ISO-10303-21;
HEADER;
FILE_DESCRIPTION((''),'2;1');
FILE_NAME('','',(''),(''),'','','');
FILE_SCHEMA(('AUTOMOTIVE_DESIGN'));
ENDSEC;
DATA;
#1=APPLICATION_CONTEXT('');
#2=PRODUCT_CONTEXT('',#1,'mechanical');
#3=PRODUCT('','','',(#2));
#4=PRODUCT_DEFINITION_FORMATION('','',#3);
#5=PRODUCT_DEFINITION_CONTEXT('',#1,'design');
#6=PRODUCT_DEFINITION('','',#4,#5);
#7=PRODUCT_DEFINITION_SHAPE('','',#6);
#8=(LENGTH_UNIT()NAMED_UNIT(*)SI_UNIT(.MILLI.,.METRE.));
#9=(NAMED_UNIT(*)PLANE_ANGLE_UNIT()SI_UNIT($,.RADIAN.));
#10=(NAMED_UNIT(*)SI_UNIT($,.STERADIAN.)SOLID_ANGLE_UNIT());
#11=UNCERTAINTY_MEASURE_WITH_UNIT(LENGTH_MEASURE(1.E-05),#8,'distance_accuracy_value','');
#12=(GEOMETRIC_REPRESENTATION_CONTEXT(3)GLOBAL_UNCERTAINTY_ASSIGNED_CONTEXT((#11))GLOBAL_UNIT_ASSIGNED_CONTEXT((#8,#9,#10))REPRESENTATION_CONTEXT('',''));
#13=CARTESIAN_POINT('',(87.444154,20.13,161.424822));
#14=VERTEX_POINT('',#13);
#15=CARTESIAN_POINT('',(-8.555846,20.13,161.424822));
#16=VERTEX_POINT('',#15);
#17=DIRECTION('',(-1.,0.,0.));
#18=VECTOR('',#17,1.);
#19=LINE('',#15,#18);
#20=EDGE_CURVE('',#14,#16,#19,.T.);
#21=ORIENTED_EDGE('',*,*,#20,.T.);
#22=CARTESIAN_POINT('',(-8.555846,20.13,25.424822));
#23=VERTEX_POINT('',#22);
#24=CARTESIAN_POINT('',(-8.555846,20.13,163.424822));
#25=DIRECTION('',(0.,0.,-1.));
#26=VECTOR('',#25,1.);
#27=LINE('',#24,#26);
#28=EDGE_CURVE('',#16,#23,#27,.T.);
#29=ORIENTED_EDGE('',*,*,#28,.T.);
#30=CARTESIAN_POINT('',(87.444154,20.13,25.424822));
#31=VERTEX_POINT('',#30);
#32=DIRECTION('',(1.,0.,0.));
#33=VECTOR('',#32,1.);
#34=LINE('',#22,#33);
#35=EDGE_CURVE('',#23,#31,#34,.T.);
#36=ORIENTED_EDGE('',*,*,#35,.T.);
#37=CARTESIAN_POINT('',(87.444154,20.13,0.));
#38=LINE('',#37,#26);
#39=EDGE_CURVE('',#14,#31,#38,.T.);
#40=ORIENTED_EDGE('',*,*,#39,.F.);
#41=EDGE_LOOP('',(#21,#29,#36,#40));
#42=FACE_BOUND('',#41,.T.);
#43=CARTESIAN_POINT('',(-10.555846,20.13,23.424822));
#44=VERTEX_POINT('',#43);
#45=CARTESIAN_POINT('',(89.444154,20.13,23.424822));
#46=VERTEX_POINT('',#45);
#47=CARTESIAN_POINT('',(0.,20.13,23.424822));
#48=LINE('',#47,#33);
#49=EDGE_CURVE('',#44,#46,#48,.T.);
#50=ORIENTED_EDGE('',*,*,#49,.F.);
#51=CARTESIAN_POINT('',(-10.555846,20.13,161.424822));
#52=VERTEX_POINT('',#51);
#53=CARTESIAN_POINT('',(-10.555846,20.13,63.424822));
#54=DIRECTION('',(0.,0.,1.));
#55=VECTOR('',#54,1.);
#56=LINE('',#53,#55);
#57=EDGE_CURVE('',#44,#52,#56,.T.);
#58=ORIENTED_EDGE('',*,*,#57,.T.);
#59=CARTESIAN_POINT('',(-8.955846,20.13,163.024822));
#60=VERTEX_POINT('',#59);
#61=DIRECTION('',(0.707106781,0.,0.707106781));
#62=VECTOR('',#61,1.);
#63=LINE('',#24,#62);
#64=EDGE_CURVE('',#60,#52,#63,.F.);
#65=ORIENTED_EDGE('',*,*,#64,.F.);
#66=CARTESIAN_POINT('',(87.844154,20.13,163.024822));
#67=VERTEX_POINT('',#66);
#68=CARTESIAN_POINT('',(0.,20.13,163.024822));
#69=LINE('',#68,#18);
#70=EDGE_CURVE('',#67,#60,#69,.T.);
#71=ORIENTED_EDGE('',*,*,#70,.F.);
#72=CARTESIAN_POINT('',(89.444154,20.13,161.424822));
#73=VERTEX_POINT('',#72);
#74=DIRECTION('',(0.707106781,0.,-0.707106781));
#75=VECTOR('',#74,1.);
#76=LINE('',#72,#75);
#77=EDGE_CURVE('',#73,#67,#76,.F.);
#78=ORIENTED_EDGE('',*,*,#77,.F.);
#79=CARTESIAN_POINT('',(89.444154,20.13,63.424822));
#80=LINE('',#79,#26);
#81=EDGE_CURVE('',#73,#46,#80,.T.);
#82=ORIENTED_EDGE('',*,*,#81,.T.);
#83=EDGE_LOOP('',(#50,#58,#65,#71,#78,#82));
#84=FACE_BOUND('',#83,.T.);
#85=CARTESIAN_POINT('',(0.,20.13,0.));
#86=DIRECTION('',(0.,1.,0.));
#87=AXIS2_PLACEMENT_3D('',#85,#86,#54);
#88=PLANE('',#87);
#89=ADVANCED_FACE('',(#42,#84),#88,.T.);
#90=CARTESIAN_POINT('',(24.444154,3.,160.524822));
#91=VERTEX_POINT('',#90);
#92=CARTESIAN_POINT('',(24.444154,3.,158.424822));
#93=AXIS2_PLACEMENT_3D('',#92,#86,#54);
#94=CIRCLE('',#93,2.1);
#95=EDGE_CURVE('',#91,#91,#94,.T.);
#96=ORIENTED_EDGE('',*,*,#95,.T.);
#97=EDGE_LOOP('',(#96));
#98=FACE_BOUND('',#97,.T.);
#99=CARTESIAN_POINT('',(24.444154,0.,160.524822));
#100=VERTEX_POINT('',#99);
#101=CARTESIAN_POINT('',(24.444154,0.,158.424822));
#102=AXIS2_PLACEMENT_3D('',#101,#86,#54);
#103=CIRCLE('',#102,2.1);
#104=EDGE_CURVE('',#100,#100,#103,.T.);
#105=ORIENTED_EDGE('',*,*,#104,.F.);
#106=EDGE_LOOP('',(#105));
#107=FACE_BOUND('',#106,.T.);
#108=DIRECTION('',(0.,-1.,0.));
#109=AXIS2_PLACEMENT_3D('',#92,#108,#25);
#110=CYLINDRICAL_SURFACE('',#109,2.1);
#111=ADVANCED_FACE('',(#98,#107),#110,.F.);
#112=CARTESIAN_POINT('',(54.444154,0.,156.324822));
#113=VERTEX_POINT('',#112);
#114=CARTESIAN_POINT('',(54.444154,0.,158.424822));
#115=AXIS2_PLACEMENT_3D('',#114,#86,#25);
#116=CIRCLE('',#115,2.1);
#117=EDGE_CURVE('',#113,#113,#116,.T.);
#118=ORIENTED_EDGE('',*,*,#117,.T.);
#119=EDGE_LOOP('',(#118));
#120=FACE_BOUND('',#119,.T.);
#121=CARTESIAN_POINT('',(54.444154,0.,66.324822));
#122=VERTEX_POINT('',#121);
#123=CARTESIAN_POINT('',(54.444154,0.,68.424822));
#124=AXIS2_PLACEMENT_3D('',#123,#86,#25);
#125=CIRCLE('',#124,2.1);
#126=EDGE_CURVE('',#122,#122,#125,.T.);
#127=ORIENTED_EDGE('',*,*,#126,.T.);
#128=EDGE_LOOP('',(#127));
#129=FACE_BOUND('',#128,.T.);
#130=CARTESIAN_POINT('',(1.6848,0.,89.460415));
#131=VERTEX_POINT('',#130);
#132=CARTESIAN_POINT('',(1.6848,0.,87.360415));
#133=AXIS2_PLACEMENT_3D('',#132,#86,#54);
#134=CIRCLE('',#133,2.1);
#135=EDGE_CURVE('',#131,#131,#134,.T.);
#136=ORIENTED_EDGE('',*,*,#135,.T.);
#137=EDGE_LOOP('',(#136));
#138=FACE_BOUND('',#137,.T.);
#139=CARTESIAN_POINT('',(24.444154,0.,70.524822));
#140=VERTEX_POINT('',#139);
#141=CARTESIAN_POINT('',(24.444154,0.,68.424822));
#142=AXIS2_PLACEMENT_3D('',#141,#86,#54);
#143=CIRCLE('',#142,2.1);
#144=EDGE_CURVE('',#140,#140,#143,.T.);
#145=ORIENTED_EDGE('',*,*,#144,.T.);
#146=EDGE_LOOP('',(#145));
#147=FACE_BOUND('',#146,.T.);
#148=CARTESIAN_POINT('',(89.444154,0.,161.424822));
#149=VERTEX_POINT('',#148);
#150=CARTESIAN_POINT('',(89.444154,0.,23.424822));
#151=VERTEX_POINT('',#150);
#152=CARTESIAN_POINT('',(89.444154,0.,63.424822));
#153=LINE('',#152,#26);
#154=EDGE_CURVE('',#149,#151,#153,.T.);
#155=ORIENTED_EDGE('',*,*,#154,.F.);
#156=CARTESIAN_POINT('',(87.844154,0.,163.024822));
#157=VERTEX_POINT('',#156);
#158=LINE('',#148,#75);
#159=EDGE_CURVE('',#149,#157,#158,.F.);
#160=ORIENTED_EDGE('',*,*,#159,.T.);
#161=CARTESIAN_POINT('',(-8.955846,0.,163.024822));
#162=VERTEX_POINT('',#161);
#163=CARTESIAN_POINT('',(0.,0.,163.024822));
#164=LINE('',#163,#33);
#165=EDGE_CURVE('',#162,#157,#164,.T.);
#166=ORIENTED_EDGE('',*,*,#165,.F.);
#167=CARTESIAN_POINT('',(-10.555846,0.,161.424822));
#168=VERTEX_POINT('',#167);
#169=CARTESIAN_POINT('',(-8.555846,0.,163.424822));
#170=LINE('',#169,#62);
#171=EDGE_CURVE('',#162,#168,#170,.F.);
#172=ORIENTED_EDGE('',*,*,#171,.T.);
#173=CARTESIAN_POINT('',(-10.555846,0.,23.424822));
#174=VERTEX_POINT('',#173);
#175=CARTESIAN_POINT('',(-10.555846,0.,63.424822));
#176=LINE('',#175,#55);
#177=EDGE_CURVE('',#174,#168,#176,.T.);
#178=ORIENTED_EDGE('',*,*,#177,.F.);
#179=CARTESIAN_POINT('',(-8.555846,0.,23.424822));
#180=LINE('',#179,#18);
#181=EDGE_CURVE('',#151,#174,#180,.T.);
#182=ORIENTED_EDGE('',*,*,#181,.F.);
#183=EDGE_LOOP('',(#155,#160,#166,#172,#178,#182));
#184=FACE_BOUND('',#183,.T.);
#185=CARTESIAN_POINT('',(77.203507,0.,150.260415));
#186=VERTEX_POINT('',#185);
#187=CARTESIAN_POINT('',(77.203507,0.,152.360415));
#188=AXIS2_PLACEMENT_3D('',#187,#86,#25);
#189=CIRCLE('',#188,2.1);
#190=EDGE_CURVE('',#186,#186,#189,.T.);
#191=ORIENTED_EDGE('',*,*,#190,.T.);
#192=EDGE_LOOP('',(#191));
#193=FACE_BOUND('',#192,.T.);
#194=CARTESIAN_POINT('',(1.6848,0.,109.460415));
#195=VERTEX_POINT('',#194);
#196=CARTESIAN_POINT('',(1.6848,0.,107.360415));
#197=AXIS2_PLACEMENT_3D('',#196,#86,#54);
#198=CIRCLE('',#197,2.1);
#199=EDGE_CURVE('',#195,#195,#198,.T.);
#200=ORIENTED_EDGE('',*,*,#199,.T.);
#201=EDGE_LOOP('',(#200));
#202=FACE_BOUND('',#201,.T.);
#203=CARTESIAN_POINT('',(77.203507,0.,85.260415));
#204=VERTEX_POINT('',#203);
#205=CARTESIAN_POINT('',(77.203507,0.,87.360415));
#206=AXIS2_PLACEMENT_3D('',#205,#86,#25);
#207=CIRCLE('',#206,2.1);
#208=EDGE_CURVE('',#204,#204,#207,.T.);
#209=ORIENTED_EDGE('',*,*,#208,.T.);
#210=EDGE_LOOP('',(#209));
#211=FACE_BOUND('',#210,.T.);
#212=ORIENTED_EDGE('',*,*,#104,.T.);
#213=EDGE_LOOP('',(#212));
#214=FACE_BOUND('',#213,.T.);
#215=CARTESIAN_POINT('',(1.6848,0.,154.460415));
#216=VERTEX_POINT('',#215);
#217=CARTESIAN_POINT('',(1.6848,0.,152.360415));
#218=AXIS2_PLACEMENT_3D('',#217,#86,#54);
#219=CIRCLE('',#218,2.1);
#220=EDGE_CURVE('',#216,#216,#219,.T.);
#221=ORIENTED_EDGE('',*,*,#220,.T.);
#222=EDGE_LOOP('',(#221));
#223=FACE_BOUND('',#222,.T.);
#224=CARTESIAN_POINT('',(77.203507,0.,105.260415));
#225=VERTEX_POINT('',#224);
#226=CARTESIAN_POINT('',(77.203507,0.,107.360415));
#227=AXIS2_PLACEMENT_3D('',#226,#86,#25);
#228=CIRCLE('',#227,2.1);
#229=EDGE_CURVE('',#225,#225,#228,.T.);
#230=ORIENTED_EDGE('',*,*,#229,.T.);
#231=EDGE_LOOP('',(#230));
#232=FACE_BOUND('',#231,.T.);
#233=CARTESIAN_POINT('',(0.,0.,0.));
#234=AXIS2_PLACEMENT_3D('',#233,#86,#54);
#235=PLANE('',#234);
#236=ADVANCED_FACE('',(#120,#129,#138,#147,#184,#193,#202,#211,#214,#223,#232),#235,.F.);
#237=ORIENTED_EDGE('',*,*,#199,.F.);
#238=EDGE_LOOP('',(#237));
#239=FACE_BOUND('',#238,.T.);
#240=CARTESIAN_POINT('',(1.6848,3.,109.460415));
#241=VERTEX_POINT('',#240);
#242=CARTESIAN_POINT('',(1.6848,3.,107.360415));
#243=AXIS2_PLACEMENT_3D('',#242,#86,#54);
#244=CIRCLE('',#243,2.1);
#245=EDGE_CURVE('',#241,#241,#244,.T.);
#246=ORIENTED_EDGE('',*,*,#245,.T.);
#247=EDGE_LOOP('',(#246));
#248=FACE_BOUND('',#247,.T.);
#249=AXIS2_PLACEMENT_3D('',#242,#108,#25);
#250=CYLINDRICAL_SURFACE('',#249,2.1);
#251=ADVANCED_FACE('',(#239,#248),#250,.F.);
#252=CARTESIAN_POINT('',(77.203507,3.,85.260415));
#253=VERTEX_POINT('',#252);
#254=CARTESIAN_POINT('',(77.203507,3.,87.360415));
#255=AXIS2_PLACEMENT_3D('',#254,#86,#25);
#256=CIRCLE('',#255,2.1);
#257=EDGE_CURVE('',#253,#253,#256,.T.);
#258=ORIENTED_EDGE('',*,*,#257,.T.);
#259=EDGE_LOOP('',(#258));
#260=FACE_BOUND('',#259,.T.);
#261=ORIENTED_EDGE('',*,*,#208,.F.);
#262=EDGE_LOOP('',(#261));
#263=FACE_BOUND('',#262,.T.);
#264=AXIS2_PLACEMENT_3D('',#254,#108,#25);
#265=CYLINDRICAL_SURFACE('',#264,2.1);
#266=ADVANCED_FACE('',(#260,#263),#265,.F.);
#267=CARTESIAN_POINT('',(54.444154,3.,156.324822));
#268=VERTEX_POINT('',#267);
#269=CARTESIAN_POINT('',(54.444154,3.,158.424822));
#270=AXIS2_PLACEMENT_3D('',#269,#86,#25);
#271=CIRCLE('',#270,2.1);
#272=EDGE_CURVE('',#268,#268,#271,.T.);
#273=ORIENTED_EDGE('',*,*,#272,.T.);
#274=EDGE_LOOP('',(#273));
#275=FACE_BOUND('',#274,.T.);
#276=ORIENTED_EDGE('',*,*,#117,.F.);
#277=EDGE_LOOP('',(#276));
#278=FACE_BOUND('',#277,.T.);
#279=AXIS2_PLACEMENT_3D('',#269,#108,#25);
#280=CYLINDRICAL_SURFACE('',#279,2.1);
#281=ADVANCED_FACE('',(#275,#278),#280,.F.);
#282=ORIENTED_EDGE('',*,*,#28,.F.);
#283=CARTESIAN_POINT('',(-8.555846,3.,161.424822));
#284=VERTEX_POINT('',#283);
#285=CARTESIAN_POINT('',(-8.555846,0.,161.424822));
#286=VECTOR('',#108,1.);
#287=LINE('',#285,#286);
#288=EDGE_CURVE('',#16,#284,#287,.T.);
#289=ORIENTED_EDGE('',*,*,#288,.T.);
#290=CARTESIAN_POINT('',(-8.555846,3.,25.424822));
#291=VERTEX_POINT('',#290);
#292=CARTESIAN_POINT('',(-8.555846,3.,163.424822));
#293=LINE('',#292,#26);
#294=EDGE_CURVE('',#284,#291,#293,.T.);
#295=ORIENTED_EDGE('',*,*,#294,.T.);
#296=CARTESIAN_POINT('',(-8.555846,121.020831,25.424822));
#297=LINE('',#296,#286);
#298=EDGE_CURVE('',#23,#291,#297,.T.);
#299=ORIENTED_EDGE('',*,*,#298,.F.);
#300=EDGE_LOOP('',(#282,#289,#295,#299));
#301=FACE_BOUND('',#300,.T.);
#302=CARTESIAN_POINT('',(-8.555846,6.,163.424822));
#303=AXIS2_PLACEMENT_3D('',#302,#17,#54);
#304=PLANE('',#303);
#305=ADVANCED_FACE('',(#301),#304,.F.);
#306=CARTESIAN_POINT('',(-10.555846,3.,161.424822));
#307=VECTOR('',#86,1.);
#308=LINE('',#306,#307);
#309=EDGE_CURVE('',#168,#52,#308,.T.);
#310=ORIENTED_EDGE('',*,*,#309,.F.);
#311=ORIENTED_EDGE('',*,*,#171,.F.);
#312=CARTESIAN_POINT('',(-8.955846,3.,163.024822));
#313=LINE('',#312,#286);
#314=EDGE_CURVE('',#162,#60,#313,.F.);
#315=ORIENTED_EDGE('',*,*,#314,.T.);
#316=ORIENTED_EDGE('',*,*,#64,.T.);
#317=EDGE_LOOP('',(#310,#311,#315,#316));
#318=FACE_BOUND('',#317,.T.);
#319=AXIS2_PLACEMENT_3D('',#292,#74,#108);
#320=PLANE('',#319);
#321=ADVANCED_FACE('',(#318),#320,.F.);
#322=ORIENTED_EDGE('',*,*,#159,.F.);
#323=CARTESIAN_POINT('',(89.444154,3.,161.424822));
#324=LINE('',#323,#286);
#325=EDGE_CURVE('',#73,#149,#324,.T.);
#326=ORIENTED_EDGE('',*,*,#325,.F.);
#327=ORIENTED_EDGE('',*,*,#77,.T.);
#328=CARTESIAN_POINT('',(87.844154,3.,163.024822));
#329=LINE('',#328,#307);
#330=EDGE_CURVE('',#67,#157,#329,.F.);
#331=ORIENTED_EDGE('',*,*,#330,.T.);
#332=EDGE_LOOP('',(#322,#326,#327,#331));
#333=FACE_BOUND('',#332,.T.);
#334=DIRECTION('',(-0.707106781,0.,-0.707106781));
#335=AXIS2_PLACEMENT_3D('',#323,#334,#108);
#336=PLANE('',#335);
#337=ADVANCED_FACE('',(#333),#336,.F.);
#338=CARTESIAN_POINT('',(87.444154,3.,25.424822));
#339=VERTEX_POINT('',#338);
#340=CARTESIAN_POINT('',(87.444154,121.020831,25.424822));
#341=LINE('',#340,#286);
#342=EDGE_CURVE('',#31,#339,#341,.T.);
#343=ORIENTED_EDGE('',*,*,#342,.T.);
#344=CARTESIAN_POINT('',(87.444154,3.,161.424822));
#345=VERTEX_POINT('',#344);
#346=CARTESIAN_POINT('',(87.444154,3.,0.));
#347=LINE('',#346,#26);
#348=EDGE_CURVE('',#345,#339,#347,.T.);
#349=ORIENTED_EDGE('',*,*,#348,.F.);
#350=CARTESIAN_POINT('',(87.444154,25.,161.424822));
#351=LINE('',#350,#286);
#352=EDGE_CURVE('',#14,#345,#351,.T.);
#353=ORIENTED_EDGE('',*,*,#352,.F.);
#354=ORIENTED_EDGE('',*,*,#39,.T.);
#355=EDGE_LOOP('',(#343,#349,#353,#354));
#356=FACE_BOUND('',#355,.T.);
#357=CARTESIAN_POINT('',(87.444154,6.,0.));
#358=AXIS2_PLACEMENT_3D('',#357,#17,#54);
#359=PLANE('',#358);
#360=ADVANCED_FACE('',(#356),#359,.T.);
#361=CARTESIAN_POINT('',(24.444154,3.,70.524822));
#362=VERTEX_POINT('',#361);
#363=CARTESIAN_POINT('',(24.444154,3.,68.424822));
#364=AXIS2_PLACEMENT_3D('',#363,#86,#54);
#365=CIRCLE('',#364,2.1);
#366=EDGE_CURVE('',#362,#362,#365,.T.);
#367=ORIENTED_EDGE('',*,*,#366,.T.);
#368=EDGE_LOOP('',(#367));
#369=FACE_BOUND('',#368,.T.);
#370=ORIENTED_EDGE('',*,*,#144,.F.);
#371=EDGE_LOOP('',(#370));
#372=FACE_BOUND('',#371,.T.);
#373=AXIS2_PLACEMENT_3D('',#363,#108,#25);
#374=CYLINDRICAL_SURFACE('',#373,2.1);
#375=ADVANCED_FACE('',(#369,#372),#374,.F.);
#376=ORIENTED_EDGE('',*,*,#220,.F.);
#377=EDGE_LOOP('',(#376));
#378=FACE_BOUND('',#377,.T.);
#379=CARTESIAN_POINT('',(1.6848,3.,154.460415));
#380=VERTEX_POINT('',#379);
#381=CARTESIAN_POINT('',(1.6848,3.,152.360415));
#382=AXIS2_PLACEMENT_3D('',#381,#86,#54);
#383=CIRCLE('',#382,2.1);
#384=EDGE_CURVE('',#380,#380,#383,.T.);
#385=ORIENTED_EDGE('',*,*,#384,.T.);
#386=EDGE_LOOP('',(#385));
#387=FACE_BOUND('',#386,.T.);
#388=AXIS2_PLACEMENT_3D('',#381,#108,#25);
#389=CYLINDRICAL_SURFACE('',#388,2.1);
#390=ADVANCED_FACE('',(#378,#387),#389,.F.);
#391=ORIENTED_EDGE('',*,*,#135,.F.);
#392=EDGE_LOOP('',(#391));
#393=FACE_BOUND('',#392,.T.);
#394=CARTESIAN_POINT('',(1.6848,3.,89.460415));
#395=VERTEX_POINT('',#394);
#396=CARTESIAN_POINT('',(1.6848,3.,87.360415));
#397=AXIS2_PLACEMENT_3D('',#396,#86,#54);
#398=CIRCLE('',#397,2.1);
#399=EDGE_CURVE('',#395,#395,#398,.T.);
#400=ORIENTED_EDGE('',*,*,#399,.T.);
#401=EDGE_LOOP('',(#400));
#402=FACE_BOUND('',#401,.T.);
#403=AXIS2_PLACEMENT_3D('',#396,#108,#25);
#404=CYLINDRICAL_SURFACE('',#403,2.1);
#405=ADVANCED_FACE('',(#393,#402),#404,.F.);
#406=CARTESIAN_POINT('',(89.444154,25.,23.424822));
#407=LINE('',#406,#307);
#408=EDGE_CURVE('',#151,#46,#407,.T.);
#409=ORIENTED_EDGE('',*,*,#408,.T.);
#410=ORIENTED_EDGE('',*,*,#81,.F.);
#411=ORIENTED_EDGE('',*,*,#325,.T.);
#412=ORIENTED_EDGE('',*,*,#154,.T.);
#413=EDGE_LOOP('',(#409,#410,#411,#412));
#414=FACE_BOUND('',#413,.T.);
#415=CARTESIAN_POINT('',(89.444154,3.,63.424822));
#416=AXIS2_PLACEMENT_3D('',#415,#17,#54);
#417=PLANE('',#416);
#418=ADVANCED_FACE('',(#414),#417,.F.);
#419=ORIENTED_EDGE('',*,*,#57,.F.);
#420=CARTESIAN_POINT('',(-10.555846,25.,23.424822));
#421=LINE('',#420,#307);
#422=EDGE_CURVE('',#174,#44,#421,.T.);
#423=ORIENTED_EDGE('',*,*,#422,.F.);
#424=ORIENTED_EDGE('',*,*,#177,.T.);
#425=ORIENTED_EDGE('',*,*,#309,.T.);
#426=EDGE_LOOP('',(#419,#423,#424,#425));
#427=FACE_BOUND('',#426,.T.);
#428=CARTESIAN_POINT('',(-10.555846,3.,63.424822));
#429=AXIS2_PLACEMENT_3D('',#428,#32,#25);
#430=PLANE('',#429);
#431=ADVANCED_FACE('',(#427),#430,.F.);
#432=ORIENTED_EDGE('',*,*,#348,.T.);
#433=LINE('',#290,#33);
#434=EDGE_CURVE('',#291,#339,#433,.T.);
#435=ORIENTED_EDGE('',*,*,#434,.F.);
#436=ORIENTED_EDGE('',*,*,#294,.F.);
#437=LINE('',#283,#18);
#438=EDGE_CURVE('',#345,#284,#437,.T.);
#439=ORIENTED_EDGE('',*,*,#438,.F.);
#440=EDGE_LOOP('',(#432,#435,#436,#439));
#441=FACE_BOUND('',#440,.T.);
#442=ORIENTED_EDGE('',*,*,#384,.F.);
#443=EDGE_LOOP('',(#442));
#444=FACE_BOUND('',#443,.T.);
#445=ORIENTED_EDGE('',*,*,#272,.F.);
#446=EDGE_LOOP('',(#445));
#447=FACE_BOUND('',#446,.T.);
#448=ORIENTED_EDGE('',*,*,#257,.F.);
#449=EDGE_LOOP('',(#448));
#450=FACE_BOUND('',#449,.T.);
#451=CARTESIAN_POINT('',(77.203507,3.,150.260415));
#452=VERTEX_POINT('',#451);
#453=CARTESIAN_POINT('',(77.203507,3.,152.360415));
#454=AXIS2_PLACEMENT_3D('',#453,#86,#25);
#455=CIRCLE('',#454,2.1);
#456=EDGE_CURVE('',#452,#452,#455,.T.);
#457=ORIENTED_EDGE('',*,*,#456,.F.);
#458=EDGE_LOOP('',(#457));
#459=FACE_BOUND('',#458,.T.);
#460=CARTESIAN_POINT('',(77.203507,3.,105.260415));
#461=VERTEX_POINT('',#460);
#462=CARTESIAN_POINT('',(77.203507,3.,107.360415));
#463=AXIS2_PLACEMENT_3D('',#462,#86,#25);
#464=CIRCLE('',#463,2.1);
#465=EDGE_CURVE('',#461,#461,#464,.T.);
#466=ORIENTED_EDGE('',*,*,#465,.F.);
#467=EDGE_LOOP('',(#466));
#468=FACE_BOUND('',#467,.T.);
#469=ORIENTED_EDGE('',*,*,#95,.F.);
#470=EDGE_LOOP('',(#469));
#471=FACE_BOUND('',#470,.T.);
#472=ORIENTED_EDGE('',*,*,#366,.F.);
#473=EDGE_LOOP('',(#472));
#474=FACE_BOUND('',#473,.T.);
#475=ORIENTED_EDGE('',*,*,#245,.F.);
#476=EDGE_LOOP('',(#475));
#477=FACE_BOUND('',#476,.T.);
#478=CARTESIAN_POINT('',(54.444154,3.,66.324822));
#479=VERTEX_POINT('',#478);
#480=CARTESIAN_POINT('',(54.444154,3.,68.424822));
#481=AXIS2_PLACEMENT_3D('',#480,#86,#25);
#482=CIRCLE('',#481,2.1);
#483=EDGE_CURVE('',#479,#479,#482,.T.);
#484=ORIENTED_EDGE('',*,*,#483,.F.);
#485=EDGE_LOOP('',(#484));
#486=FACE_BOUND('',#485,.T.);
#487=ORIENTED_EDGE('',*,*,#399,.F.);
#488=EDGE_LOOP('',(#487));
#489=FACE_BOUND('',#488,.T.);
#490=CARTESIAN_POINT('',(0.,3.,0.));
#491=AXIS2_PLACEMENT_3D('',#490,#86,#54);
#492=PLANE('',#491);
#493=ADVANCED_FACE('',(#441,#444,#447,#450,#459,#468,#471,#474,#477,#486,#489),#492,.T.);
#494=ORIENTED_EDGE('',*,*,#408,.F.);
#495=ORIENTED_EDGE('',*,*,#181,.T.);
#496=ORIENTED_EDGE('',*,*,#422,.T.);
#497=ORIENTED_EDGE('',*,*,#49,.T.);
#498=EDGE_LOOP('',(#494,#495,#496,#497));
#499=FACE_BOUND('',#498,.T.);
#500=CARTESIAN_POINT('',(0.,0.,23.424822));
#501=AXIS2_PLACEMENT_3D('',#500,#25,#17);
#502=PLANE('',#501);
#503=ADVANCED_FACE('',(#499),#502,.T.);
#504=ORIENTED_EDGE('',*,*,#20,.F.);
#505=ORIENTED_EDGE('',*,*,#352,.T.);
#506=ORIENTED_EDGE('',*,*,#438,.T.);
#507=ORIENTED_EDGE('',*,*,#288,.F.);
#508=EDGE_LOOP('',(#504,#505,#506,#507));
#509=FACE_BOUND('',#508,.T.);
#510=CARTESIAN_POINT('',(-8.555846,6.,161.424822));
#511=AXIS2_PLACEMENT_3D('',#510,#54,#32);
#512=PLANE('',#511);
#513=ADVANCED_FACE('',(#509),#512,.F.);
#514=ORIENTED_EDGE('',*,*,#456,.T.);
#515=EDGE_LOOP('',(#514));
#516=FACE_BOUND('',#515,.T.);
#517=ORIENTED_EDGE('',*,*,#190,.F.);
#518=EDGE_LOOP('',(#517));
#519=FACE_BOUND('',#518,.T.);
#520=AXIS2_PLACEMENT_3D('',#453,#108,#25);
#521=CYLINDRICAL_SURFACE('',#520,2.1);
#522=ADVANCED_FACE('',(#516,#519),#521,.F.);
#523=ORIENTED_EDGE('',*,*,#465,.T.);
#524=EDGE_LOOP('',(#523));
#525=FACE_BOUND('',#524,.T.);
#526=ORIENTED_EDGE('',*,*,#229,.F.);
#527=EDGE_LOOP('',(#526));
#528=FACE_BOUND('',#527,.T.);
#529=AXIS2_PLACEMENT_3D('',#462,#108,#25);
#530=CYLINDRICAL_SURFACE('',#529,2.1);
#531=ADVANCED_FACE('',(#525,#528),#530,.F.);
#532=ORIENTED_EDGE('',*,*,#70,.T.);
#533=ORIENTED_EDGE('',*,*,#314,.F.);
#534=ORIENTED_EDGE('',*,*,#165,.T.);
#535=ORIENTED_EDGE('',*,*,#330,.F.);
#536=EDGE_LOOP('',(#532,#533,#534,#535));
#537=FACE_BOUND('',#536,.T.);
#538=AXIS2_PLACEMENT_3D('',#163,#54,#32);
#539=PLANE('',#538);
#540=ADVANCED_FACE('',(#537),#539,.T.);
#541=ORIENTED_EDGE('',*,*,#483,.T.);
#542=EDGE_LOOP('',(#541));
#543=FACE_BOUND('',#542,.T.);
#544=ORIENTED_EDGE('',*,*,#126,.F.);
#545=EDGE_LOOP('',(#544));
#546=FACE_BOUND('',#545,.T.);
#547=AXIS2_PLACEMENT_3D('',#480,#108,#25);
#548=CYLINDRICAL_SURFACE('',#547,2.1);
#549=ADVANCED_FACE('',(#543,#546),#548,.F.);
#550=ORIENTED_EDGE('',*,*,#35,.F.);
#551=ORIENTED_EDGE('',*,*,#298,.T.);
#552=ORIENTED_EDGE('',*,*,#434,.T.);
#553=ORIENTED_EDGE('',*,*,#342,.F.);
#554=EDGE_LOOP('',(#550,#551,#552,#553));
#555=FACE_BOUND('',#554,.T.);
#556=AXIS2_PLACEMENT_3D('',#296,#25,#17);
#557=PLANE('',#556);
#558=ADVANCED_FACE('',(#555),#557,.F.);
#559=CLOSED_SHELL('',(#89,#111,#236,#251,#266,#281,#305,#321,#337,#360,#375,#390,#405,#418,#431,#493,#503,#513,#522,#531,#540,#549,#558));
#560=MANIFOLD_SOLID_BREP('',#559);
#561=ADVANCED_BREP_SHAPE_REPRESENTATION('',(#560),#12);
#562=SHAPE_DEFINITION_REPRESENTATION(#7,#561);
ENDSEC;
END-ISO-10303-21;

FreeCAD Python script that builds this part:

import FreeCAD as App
import Part
import Sketcher
Q = App.Units.Quantity


def edges_at(feature, points):
    """Names of the edges that pass closest to the given points."""
    edges = feature.Shape.Edges
    near = lambda p: min(range(len(edges)), key=lambda i: edges[i].distToShape(Part.Vertex(*p))[0])
    return sorted({f"Edge{near(p) + 1}" for p in points})

doc = App.newDocument("Part")
body = doc.addObject("PartDesign::Body", "Body")

sketch1 = body.newObject("Sketcher::SketchObject", "Sketch")
sketch1.AttachmentSupport = (doc.getObject("XZ_Plane"), [""])
sketch1.MapMode = "FlatFace"
sketch1.addGeometry([
    Part.LineSegment(App.Vector(-10.6, 63.4, 0), App.Vector(-10.6, 163.4, 0)),
    Part.LineSegment(App.Vector(-10.6, 163.4, 0), App.Vector(89.4, 163.4, 0)),
    Part.LineSegment(App.Vector(89.4, 163.4, 0), App.Vector(89.4, 63.4, 0)),
    Part.LineSegment(App.Vector(89.4, 63.4, 0), App.Vector(-10.6, 63.4, 0)),
    Part.Circle(App.Vector(1.7, 152.4, 0), App.Vector(0, 0, 1), 2.1),
    Part.Circle(App.Vector(24.4, 158.4, 0), App.Vector(0, 0, 1), 2.1),
    Part.Circle(App.Vector(54.4, 158.4, 0), App.Vector(0, 0, 1), 2.1),
    Part.Circle(App.Vector(77.2, 152.4, 0), App.Vector(0, 0, 1), 2.1),
    Part.Circle(App.Vector(1.7, 107.4, 0), App.Vector(0, 0, 1), 2.1),
    Part.Circle(App.Vector(1.7, 87.4, 0), App.Vector(0, 0, 1), 2.1),
    Part.Circle(App.Vector(24.4, 68.4, 0), App.Vector(0, 0, 1), 2.1),
    Part.Circle(App.Vector(77.2, 107.4, 0), App.Vector(0, 0, 1), 2.1),
    Part.Circle(App.Vector(54.4, 68.4, 0), App.Vector(0, 0, 1), 2.1),
    Part.Circle(App.Vector(77.2, 87.4, 0), App.Vector(0, 0, 1), 2.1),
], False)
sketch1.addConstraint([
    Sketcher.Constraint("Coincident", 0, 2, 1, 1),
    Sketcher.Constraint("Coincident", 1, 2, 2, 1),
    Sketcher.Constraint("Coincident", 2, 2, 3, 1),
    Sketcher.Constraint("Coincident", 3, 2, 0, 1),
    Sketcher.Constraint("Vertical", 0),
    Sketcher.Constraint("Horizontal", 1),
    Sketcher.Constraint("Vertical", 2),
    Sketcher.Constraint("Horizontal", 3),
    Sketcher.Constraint("Equal", 4, 5),
    Sketcher.Constraint("Equal", 5, 6),
    Sketcher.Constraint("Equal", 6, 7),
    Sketcher.Constraint("Equal", 7, 8),
    Sketcher.Constraint("Equal", 8, 9),
    Sketcher.Constraint("Equal", 9, 10),
    Sketcher.Constraint("Equal", 10, 11),
    Sketcher.Constraint("Equal", 11, 12),
    Sketcher.Constraint("Equal", 12, 13),
    Sketcher.Constraint("Horizontal", 5, 3, 6, 3),
    Sketcher.Constraint("Horizontal", 4, 3, 7, 3),
    Sketcher.Constraint("Horizontal", 8, 3, 11, 3),
    Sketcher.Constraint("Horizontal", 10, 3, 12, 3),
    Sketcher.Constraint("Horizontal", 9, 3, 13, 3),
    Sketcher.Constraint("Vertical", 4, 3, 8, 3),
    Sketcher.Constraint("Vertical", 8, 3, 9, 3),
    Sketcher.Constraint("Vertical", 5, 3, 10, 3),
    Sketcher.Constraint("Vertical", 7, 3, 11, 3),
    Sketcher.Constraint("Vertical", 6, 3, 12, 3),
    Sketcher.Constraint("Vertical", 11, 3, 13, 3),
    Sketcher.Constraint("Equal", 3, 0),
    Sketcher.Constraint("Diameter", 4, Q("4.2 mm")),
    Sketcher.Constraint("DistanceX", 1, 1, 1, 2, Q("100 mm")),
    Sketcher.Constraint("DistanceX", 5, 3, 6, 3, Q("30 mm")),
    Sketcher.Constraint("DistanceY", 8, 3, 4, 3, Q("45 mm")),
    Sketcher.Constraint("DistanceY", 9, 3, 8, 3, Q("20 mm")),
    Sketcher.Constraint("DistanceY", 10, 3, 5, 3, Q("90 mm")),
    Sketcher.Constraint("DistanceX", 0, 2, 5, 3, Q("35 mm")),
    Sketcher.Constraint("DistanceY", 5, 3, 0, 2, Q("5 mm")),
    Sketcher.Constraint("DistanceX", -1, 1, 4, 3, Q("1.6848 mm")),
    Sketcher.Constraint("DistanceY", -1, 1, 5, 3, Q("158.424822 mm")),
    Sketcher.Constraint("DistanceY", -1, 1, 4, 3, Q("152.360415 mm")),
    Sketcher.Constraint("DistanceX", -1, 1, 5, 3, Q("24.444154 mm")),
    Sketcher.Constraint("DistanceX", -1, 1, 7, 3, Q("77.203508 mm")),
])
pad1 = body.newObject("PartDesign::Pad", "Pad")
pad1.Profile = sketch1
pad1.Length = 3
pad1.Reversed = True

sketch2 = body.newObject("Sketcher::SketchObject", "Sketch001")
sketch2.AttachmentSupport = (doc.getObject("XZ_Plane"), [""])
sketch2.MapMode = "FlatFace"
sketch2.AttachmentOffset = App.Placement(App.Vector(0, 0, -3), App.Rotation())
sketch2.addGeometry([
    Part.LineSegment(App.Vector(-10.6, 63.4, 0), App.Vector(-10.6, 163.4, 0)),
    Part.LineSegment(App.Vector(-10.6, 163.4, 0), App.Vector(-8.6, 163.4, 0)),
    Part.LineSegment(App.Vector(-8.6, 163.4, 0), App.Vector(-8.6, 65.4, 0)),
    Part.LineSegment(App.Vector(-8.6, 65.4, 0), App.Vector(87.4, 65.4, 0)),
    Part.LineSegment(App.Vector(87.4, 65.4, 0), App.Vector(87.4, 163.4, 0)),
    Part.LineSegment(App.Vector(87.4, 163.4, 0), App.Vector(89.4, 163.4, 0)),
    Part.LineSegment(App.Vector(89.4, 163.4, 0), App.Vector(89.4, 63.4, 0)),
    Part.LineSegment(App.Vector(89.4, 63.4, 0), App.Vector(-10.6, 63.4, 0)),
], False)
sketch2.addConstraint([
    Sketcher.Constraint("Coincident", 0, 2, 1, 1),
    Sketcher.Constraint("Coincident", 1, 2, 2, 1),
    Sketcher.Constraint("Coincident", 2, 2, 3, 1),
    Sketcher.Constraint("Coincident", 3, 2, 4, 1),
    Sketcher.Constraint("Coincident", 4, 2, 5, 1),
    Sketcher.Constraint("Coincident", 5, 2, 6, 1),
    Sketcher.Constraint("Coincident", 6, 2, 7, 1),
    Sketcher.Constraint("Coincident", 7, 2, 0, 1),
    Sketcher.Constraint("Vertical", 0),
    Sketcher.Constraint("Horizontal", 1),
    Sketcher.Constraint("Vertical", 2),
    Sketcher.Constraint("Horizontal", 3),
    Sketcher.Constraint("Vertical", 4),
    Sketcher.Constraint("Horizontal", 5),
    Sketcher.Constraint("Vertical", 6),
    Sketcher.Constraint("Horizontal", 7),
    Sketcher.Constraint("Horizontal", 1, 2, 4, 2),
    Sketcher.Constraint("Equal", 1, 5),
    Sketcher.Constraint("Equal", 7, 0),
    Sketcher.Constraint("DistanceX", 1, 1, 1, 2, Q("2 mm")),
    Sketcher.Constraint("DistanceX", 3, 1, 3, 2, Q("96 mm")),
    Sketcher.Constraint("DistanceY", 2, 2, 2, 1, Q("98 mm")),
    Sketcher.Constraint("DistanceY", -1, 1, 0, 2, Q("163.424822 mm")),
    Sketcher.Constraint("DistanceX", 0, 2, -1, 1, Q("10.555846 mm")),
])
pad2 = body.newObject("PartDesign::Pad", "Pad001")
pad2.Profile = sketch2
pad2.Length = 3
pad2.Reversed = True

sketch3 = body.newObject("Sketcher::SketchObject", "Sketch002")
sketch3.AttachmentSupport = (doc.getObject("XZ_Plane"), [""])
sketch3.MapMode = "FlatFace"
sketch3.AttachmentOffset = App.Placement(App.Vector(0, 0, -3), App.Rotation())
sketch3.addGeometry([
    Part.LineSegment(App.Vector(-8.6, 161.4, 0), App.Vector(-8.6, 163.4, 0)),
    Part.LineSegment(App.Vector(-8.6, 163.4, 0), App.Vector(87.4, 163.4, 0)),
    Part.LineSegment(App.Vector(87.4, 163.4, 0), App.Vector(87.4, 161.4, 0)),
    Part.LineSegment(App.Vector(87.4, 161.4, 0), App.Vector(-8.6, 161.4, 0)),
], False)
sketch3.addConstraint([
    Sketcher.Constraint("Coincident", 0, 2, 1, 1),
    Sketcher.Constraint("Coincident", 1, 2, 2, 1),
    Sketcher.Constraint("Coincident", 2, 2, 3, 1),
    Sketcher.Constraint("Coincident", 3, 2, 0, 1),
    Sketcher.Constraint("Vertical", 0),
    Sketcher.Constraint("Horizontal", 1),
    Sketcher.Constraint("Vertical", 2),
    Sketcher.Constraint("Horizontal", 3),
    Sketcher.Constraint("DistanceX", 1, 1, 1, 2, Q("96 mm")),
    Sketcher.Constraint("DistanceY", 0, 1, 0, 2, Q("2 mm")),
    Sketcher.Constraint("DistanceY", -1, 1, 0, 2, Q("163.424822 mm")),
    Sketcher.Constraint("DistanceX", 0, 2, -1, 1, Q("8.555846 mm")),
])
pad3 = body.newObject("PartDesign::Pad", "Pad002")
pad3.Profile = sketch3
pad3.Length = 3
pad3.Reversed = True
doc.recompute()

chamfer = body.newObject("PartDesign::Chamfer", "Chamfer")
chamfer.Base = (pad3, edges_at(pad3, [
    (-10.556, 3, 63.425),
    (89.444, 3, 63.425),
    (89.444, 3, 163.425),
    (-10.556, 3, 163.425),
]))
chamfer.Size = 2

sketch4 = body.newObject("Sketcher::SketchObject", "Sketch003")
sketch4.AttachmentSupport = (doc.getObject("XZ_Plane"), [""])
sketch4.MapMode = "FlatFace"
sketch4.AttachmentOffset = App.Placement(App.Vector(0, 0, -3), App.Rotation())
sketch4.addGeometry([
    Part.LineSegment(App.Vector(-8.6, 67.4, 0), App.Vector(-6.6, 65.4, 0)),
    Part.LineSegment(App.Vector(-6.6, 65.4, 0), App.Vector(-8.6, 65.4, 0)),
    Part.LineSegment(App.Vector(-8.6, 65.4, 0), App.Vector(-8.6, 67.4, 0)),
    Part.LineSegment(App.Vector(87.4, 67.4, 0), App.Vector(87.4, 65.4, 0)),
    Part.LineSegment(App.Vector(87.4, 65.4, 0), App.Vector(85.4, 65.4, 0)),
    Part.LineSegment(App.Vector(85.4, 65.4, 0), App.Vector(87.4, 67.4, 0)),
    Part.LineSegment(App.Vector(87.4, 159.4, 0), App.Vector(85.4, 161.4, 0)),
    Part.LineSegment(App.Vector(85.4, 161.4, 0), App.Vector(87.4, 161.4, 0)),
    Part.LineSegment(App.Vector(87.4, 161.4, 0), App.Vector(87.4, 159.4, 0)),
    Part.LineSegment(App.Vector(-8.6, 159.4, 0), App.Vector(-8.6, 161.4, 0)),
    Part.LineSegment(App.Vector(-8.6, 161.4, 0), App.Vector(-6.6, 161.4, 0)),
    Part.LineSegment(App.Vector(-6.6, 161.4, 0), App.Vector(-8.6, 159.4, 0)),
], False)
sketch4.addConstraint([
    Sketcher.Constraint("Coincident", 0, 2, 1, 1),
    Sketcher.Constraint("Coincident", 1, 2, 2, 1),
    Sketcher.Constraint("Coincident", 2, 2, 0, 1),
    Sketcher.Constraint("Coincident", 3, 2, 4, 1),
    Sketcher.Constraint("Coincident", 4, 2, 5, 1),
    Sketcher.Constraint("Coincident", 5, 2, 3, 1),
    Sketcher.Constraint("Coincident", 6, 2, 7, 1),
    Sketcher.Constraint("Coincident", 7, 2, 8, 1),
    Sketcher.Constraint("Coincident", 8, 2, 6, 1),
    Sketcher.Constraint("Coincident", 9, 2, 10, 1),
    Sketcher.Constraint("Coincident", 10, 2, 11, 1),
    Sketcher.Constraint("Coincident", 11, 2, 9, 1),
    Sketcher.Constraint("Horizontal", 1),
    Sketcher.Constraint("Vertical", 2),
    Sketcher.Constraint("Vertical", 3),
    Sketcher.Constraint("Horizontal", 4),
    Sketcher.Constraint("Horizontal", 7),
    Sketcher.Constraint("Vertical", 8),
    Sketcher.Constraint("Vertical", 9),
    Sketcher.Constraint("Horizontal", 10),
    Sketcher.Constraint("Perpendicular", 0, 5),
    Sketcher.Constraint("Perpendicular", 5, 6),
    Sketcher.Constraint("Perpendicular", 6, 11),
    Sketcher.Constraint("Horizontal", 1, 2, 3, 2),
    Sketcher.Constraint("Horizontal", 2, 2, 5, 2),
    Sketcher.Constraint("Horizontal", 7, 2, 9, 2),
    Sketcher.Constraint("Horizontal", 8, 2, 11, 2),
    Sketcher.Constraint("Vertical", 4, 2, 6, 2),
    Sketcher.Constraint("Vertical", 5, 2, 7, 2),
    Sketcher.Constraint("Vertical", 2, 2, 9, 2),
    Sketcher.Constraint("Vertical", 0, 2, 10, 2),
    Sketcher.Constraint("DistanceX", 1, 2, 1, 1, Q("2 mm")),
    Sketcher.Constraint("DistanceX", 0, 2, 3, 2, Q("94 mm")),
    Sketcher.Constraint("DistanceY", 5, 2, 6, 2, Q("94 mm")),
    Sketcher.Constraint("DistanceY", -1, 1, 0, 2, Q("65.424822 mm")),
    Sketcher.Constraint("DistanceX", 0, 2, -1, 1, Q("6.555846 mm")),
])
pad4 = body.newObject("PartDesign::Pad", "Pad003")
pad4.Profile = sketch4
pad4.Length = 3
pad4.Reversed = True

sketch5 = body.newObject("Sketcher::SketchObject", "Sketch004")
sketch5.AttachmentSupport = (doc.getObject("YZ_Plane"), [""])
sketch5.MapMode = "FlatFace"
sketch5.AttachmentOffset = App.Placement(App.Vector(0, 0, -10.555846), App.Rotation())
sketch5.addGeometry([
    Part.LineSegment(App.Vector(25, 63, 0), App.Vector(0, 63, 0)),
    Part.LineSegment(App.Vector(0, 63, 0), App.Vector(0, 161, 0)),
    Part.LineSegment(App.Vector(0, 161, 0), App.Vector(25, 161, 0)),
    Part.LineSegment(App.Vector(25, 161, 0), App.Vector(25, 63, 0)),
], False)
sketch5.addConstraint([
    Sketcher.Constraint("Coincident", 0, 2, 1, 1),
    Sketcher.Constraint("Coincident", 1, 2, 2, 1),
    Sketcher.Constraint("Coincident", 2, 2, 3, 1),
    Sketcher.Constraint("Coincident", 3, 2, 0, 1),
    Sketcher.Constraint("Horizontal", 0),
    Sketcher.Constraint("Vertical", 1),
    Sketcher.Constraint("Horizontal", 2),
    Sketcher.Constraint("Vertical", 3),
    Sketcher.Constraint("PointOnObject", 0, 2, -2),
    Sketcher.Constraint("DistanceX", 0, 2, 0, 1, Q("25 mm")),
    Sketcher.Constraint("DistanceY", 1, 1, 1, 2, Q("98 mm")),
    Sketcher.Constraint("DistanceY", -1, 1, 0, 2, Q("63.424822 mm")),
])
pad5 = body.newObject("PartDesign::Pad", "Pad004")
pad5.Profile = sketch5
pad5.Length = 2

sketch6 = body.newObject("Sketcher::SketchObject", "Sketch005")
sketch6.AttachmentSupport = (doc.getObject("XY_Plane"), [""])
sketch6.MapMode = "FlatFace"
sketch6.AttachmentOffset = App.Placement(App.Vector(0, 0, 63.424822), App.Rotation())
sketch6.addGeometry([
    Part.LineSegment(App.Vector(-8.6, 25, 0), App.Vector(-8.6, 0, 0)),
    Part.LineSegment(App.Vector(-8.6, 0, 0), App.Vector(-10.6, 0, 0)),
    Part.LineSegment(App.Vector(-10.6, 0, 0), App.Vector(-10.6, 25, 0)),
    Part.LineSegment(App.Vector(-10.6, 25, 0), App.Vector(-8.6, 25, 0)),
], False)
sketch6.addConstraint([
    Sketcher.Constraint("Coincident", 0, 2, 1, 1),
    Sketcher.Constraint("Coincident", 1, 2, 2, 1),
    Sketcher.Constraint("Coincident", 2, 2, 3, 1),
    Sketcher.Constraint("Coincident", 3, 2, 0, 1),
    Sketcher.Constraint("Vertical", 0),
    Sketcher.Constraint("Horizontal", 1),
    Sketcher.Constraint("Vertical", 2),
    Sketcher.Constraint("Horizontal", 3),
    Sketcher.Constraint("PointOnObject", 0, 2, -1),
    Sketcher.Constraint("DistanceX", 1, 2, 1, 1, Q("2 mm")),
    Sketcher.Constraint("DistanceY", 0, 2, 0, 1, Q("25 mm")),
    Sketcher.Constraint("DistanceX", 0, 2, -1, 1, Q("8.555846 mm")),
])
pad6 = body.newObject("PartDesign::Pad", "Pad005")
pad6.Profile = sketch6
pad6.Length = 40
pad6.Reversed = True

sketch7 = body.newObject("Sketcher::SketchObject", "Sketch006")
sketch7.AttachmentSupport = (doc.getObject("YZ_Plane"), [""])
sketch7.MapMode = "FlatFace"
sketch7.AttachmentOffset = App.Placement(App.Vector(0, 0, 89.444154), App.Rotation())
sketch7.addGeometry([
    Part.LineSegment(App.Vector(25, 161, 0), App.Vector(0, 161, 0)),
    Part.LineSegment(App.Vector(0, 161, 0), App.Vector(0, 23, 0)),
    Part.LineSegment(App.Vector(0, 23, 0), App.Vector(25, 23, 0)),
    Part.LineSegment(App.Vector(25, 23, 0), App.Vector(25, 161, 0)),
], False)
sketch7.addConstraint([
    Sketcher.Constraint("Coincident", 0, 2, 1, 1),
    Sketcher.Constraint("Coincident", 1, 2, 2, 1),
    Sketcher.Constraint("Coincident", 2, 2, 3, 1),
    Sketcher.Constraint("Coincident", 3, 2, 0, 1),
    Sketcher.Constraint("Horizontal", 0),
    Sketcher.Constraint("Vertical", 1),
    Sketcher.Constraint("Horizontal", 2),
    Sketcher.Constraint("Vertical", 3),
    Sketcher.Constraint("PointOnObject", 0, 2, -2),
    Sketcher.Constraint("DistanceX", 0, 2, 0, 1, Q("25 mm")),
    Sketcher.Constraint("DistanceY", 1, 2, 1, 1, Q("138 mm")),
    Sketcher.Constraint("DistanceY", -1, 1, 0, 2, Q("161.424822 mm")),
])
pad7 = body.newObject("PartDesign::Pad", "Pad006")
pad7.Profile = sketch7
pad7.Length = 2
pad7.Reversed = True

sketch8 = body.newObject("Sketcher::SketchObject", "Sketch007")
sketch8.AttachmentSupport = (doc.getObject("XZ_Plane"), [""])
sketch8.MapMode = "FlatFace"
sketch8.AttachmentOffset = App.Placement(App.Vector(0, 0, -6), App.Rotation())
sketch8.addGeometry([
    Part.LineSegment(App.Vector(-8.6, 161.4, 0), App.Vector(-6.6, 161.4, 0)),
    Part.LineSegment(App.Vector(-6.6, 161.4, 0), App.Vector(-8.6, 159.4, 0)),
    Part.LineSegment(App.Vector(-8.6, 159.4, 0), App.Vector(-8.6, 161.4, 0)),
    Part.LineSegment(App.Vector(85.4, 161.4, 0), App.Vector(87.4, 161.4, 0)),
    Part.LineSegment(App.Vector(87.4, 161.4, 0), App.Vector(87.4, 159.4, 0)),
    Part.LineSegment(App.Vector(87.4, 159.4, 0), App.Vector(85.4, 161.4, 0)),
], False)
sketch8.addConstraint([
    Sketcher.Constraint("Coincident", 0, 2, 1, 1),
    Sketcher.Constraint("Coincident", 1, 2, 2, 1),
    Sketcher.Constraint("Coincident", 2, 2, 0, 1),
    Sketcher.Constraint("Coincident", 3, 2, 4, 1),
    Sketcher.Constraint("Coincident", 4, 2, 5, 1),
    Sketcher.Constraint("Coincident", 5, 2, 3, 1),
    Sketcher.Constraint("Horizontal", 0),
    Sketcher.Constraint("Vertical", 2),
    Sketcher.Constraint("Horizontal", 3),
    Sketcher.Constraint("Vertical", 4),
    Sketcher.Constraint("Perpendicular", 1, 5),
    Sketcher.Constraint("Horizontal", 2, 2, 3, 2),
    Sketcher.Constraint("Horizontal", 1, 2, 4, 2),
    Sketcher.Constraint("Equal", 0, 3),
    Sketcher.Constraint("DistanceX", 0, 1, 0, 2, Q("2 mm")),
    Sketcher.Constraint("DistanceX", 0, 2, 3, 2, Q("94 mm")),
    Sketcher.Constraint("DistanceY", -1, 1, 0, 2, Q("161.424822 mm")),
    Sketcher.Constraint("DistanceX", 0, 2, -1, 1, Q("6.555846 mm")),
])
pocket1 = body.newObject("PartDesign::Pocket", "Pocket")
pocket1.Profile = sketch8
pocket1.Length = 3
pocket1.Reversed = True

sketch9 = body.newObject("Sketcher::SketchObject", "Sketch008")
sketch9.AttachmentSupport = (doc.getObject("XZ_Plane"), [""])
sketch9.MapMode = "FlatFace"
sketch9.AttachmentOffset = App.Placement(App.Vector(0, 0, -6), App.Rotation())
sketch9.addGeometry([
    Part.LineSegment(App.Vector(-9, 63, 0), App.Vector(-9, 70, 0)),
    Part.LineSegment(App.Vector(-9, 70, 0), App.Vector(87, 70, 0)),
    Part.LineSegment(App.Vector(87, 70, 0), App.Vector(87, 63, 0)),
    Part.LineSegment(App.Vector(87, 63, 0), App.Vector(-9, 63, 0)),
], False)
sketch9.addConstraint([
    Sketcher.Constraint("Coincident", 0, 2, 1, 1),
    Sketcher.Constraint("Coincident", 1, 2, 2, 1),
    Sketcher.Constraint("Coincident", 2, 2, 3, 1),
    Sketcher.Constraint("Coincident", 3, 2, 0, 1),
    Sketcher.Constraint("Vertical", 0),
    Sketcher.Constraint("Horizontal", 1),
    Sketcher.Constraint("Vertical", 2),
    Sketcher.Constraint("Horizontal", 3),
    Sketcher.Constraint("DistanceX", 1, 1, 1, 2, Q("96 mm")),
    Sketcher.Constraint("DistanceY", 0, 1, 0, 2, Q("6.33747 mm")),
    Sketcher.Constraint("DistanceY", -1, 1, 2, 2, Q("63.424822 mm")),
    Sketcher.Constraint("DistanceX", 0, 2, -1, 1, Q("8.555846 mm")),
])
pocket2 = body.newObject("PartDesign::Pocket", "Pocket001")
pocket2.Profile = sketch9
pocket2.Length = 3
pocket2.Reversed = True

sketch10 = body.newObject("Sketcher::SketchObject", "Sketch009")
sketch10.AttachmentSupport = (doc.getObject("XY_Plane"), [""])
sketch10.MapMode = "FlatFace"
sketch10.AttachmentOffset = App.Placement(App.Vector(0, 0, 63.424822), App.Rotation())
sketch10.addGeometry([
    Part.LineSegment(App.Vector(87.4, 3, 0), App.Vector(87.4, 0, 0)),
    Part.LineSegment(App.Vector(87.4, 0, 0), App.Vector(-8.6, 0, 0)),
    Part.LineSegment(App.Vector(-8.6, 0, 0), App.Vector(-8.6, 3, 0)),
    Part.LineSegment(App.Vector(-8.6, 3, 0), App.Vector(87.4, 3, 0)),
], False)
sketch10.addConstraint([
    Sketcher.Constraint("Coincident", 0, 2, 1, 1),
    Sketcher.Constraint("Coincident", 1, 2, 2, 1),
    Sketcher.Constraint("Coincident", 2, 2, 3, 1),
    Sketcher.Constraint("Coincident", 3, 2, 0, 1),
    Sketcher.Constraint("Vertical", 0),
    Sketcher.Constraint("Horizontal", 1),
    Sketcher.Constraint("Vertical", 2),
    Sketcher.Constraint("Horizontal", 3),
    Sketcher.Constraint("PointOnObject", 0, 2, -1),
    Sketcher.Constraint("DistanceX", 1, 2, 1, 1, Q("96 mm")),
    Sketcher.Constraint("DistanceY", 0, 2, 0, 1, Q("3 mm")),
    Sketcher.Constraint("DistanceX", -1, 1, 0, 2, Q("87.444154 mm")),
])
pad8 = body.newObject("PartDesign::Pad", "Pad007")
pad8.Profile = sketch10
pad8.Length = 40
pad8.Reversed = True

sketch11 = body.newObject("Sketcher::SketchObject", "Sketch010")
sketch11.AttachmentSupport = (doc.getObject("XZ_Plane"), [""])
sketch11.MapMode = "FlatFace"
sketch11.AttachmentOffset = App.Placement(App.Vector(0, 0, -3), App.Rotation())
sketch11.addGeometry([
    Part.LineSegment(App.Vector(-8.6, 23.4, 0), App.Vector(-8.6, 25.4, 0)),
    Part.LineSegment(App.Vector(-8.6, 25.4, 0), App.Vector(87.4, 25.4, 0)),
    Part.LineSegment(App.Vector(87.4, 25.4, 0), App.Vector(87.4, 23.4, 0)),
    Part.LineSegment(App.Vector(87.4, 23.4, 0), App.Vector(-8.6, 23.4, 0)),
], False)
sketch11.addConstraint([
    Sketcher.Constraint("Coincident", 0, 2, 1, 1),
    Sketcher.Constraint("Coincident", 1, 2, 2, 1),
    Sketcher.Constraint("Coincident", 2, 2, 3, 1),
    Sketcher.Constraint("Coincident", 3, 2, 0, 1),
    Sketcher.Constraint("Vertical", 0),
    Sketcher.Constraint("Horizontal", 1),
    Sketcher.Constraint("Vertical", 2),
    Sketcher.Constraint("Horizontal", 3),
    Sketcher.Constraint("DistanceX", 1, 1, 1, 2, Q("96 mm")),
    Sketcher.Constraint("DistanceY", 0, 1, 0, 2, Q("2 mm")),
    Sketcher.Constraint("DistanceY", -1, 1, 0, 2, Q("25.424822 mm")),
    Sketcher.Constraint("DistanceX", 0, 2, -1, 1, Q("8.555846 mm")),
])
pad9 = body.newObject("PartDesign::Pad", "Pad008")
pad9.Profile = sketch11
pad9.Length = 22
pad9.Reversed = True

sketch12 = body.newObject("Sketcher::SketchObject", "Sketch011")
sketch12.AttachmentSupport = (doc.getObject("XZ_Plane"), [""])
sketch12.MapMode = "FlatFace"
sketch12.AttachmentOffset = App.Placement(App.Vector(0, 0, -6), App.Rotation())
sketch12.addGeometry([
    Part.LineSegment(App.Vector(-10.6, 161.4, 0), App.Vector(-8.6, 163.4, 0)),
    Part.LineSegment(App.Vector(-8.6, 163.4, 0), App.Vector(87.4, 163.4, 0)),
    Part.LineSegment(App.Vector(87.4, 163.4, 0), App.Vector(89.4, 161.4, 0)),
    Part.LineSegment(App.Vector(89.4, 161.4, 0), App.Vector(-10.6, 161.4, 0)),
], False)
sketch12.addConstraint([
    Sketcher.Constraint("Coincident", 0, 2, 1, 1),
    Sketcher.Constraint("Coincident", 1, 2, 2, 1),
    Sketcher.Constraint("Coincident", 2, 2, 3, 1),
    Sketcher.Constraint("Coincident", 3, 2, 0, 1),
    Sketcher.Constraint("Horizontal", 1),
    Sketcher.Constraint("Horizontal", 3),
    Sketcher.Constraint("Perpendicular", 0, 2),
    Sketcher.Constraint("Equal", 0, 2),
    Sketcher.Constraint("DistanceX", 1, 1, 1, 2, Q("96 mm")),
    Sketcher.Constraint("DistanceX", 3, 2, 3, 1, Q("100 mm")),
    Sketcher.Constraint("DistanceY", -1, 1, 0, 2, Q("163.424822 mm")),
    Sketcher.Constraint("DistanceX", 0, 2, -1, 1, Q("8.555846 mm")),
])
pad10 = body.newObject("PartDesign::Pad", "Pad009")
pad10.Profile = sketch12
pad10.Length = 19
pad10.Reversed = True

sketch13 = body.newObject("Sketcher::SketchObject", "Sketch012")
sketch13.AttachmentSupport = (doc.getObject("XY_Plane"), [""])
sketch13.MapMode = "FlatFace"
sketch13.AttachmentOffset = App.Placement(App.Vector(0, 0, 163.424822), App.Rotation())
sketch13.addGeometry([
    Part.LineSegment(App.Vector(-16, 29, 0), App.Vector(-16, -5, 0)),
    Part.LineSegment(App.Vector(-16, -5, 0), App.Vector(92, -5, 0)),
    Part.LineSegment(App.Vector(92, -5, 0), App.Vector(92, 29, 0)),
    Part.LineSegment(App.Vector(92, 29, 0), App.Vector(-16, 29, 0)),
], False)
sketch13.addConstraint([
    Sketcher.Constraint("Coincident", 0, 2, 1, 1),
    Sketcher.Constraint("Coincident", 1, 2, 2, 1),
    Sketcher.Constraint("Coincident", 2, 2, 3, 1),
    Sketcher.Constraint("Coincident", 3, 2, 0, 1),
    Sketcher.Constraint("Vertical", 0),
    Sketcher.Constraint("Horizontal", 1),
    Sketcher.Constraint("Vertical", 2),
    Sketcher.Constraint("Horizontal", 3),
    Sketcher.Constraint("DistanceX", 1, 1, 1, 2, Q("108.52773 mm")),
    Sketcher.Constraint("DistanceY", 0, 2, 0, 1, Q("34.099347 mm")),
    Sketcher.Constraint("DistanceX", 0, 2, -1, 1, Q("16.185871 mm")),
    Sketcher.Constraint("DistanceY", 0, 2, -1, 1, Q("4.940671 mm")),
])
pocket3 = body.newObject("PartDesign::Pocket", "Pocket002")
pocket3.Profile = sketch13
pocket3.Length = 0.4

sketch14 = body.newObject("Sketcher::SketchObject", "Sketch013")
sketch14.AttachmentSupport = (doc.getObject("XZ_Plane"), [""])
sketch14.MapMode = "FlatFace"
sketch14.AttachmentOffset = App.Placement(App.Vector(0, 0, -25), App.Rotation())
sketch14.addGeometry([
    Part.LineSegment(App.Vector(-17, 20, 0), App.Vector(-17, 169, 0)),
    Part.LineSegment(App.Vector(-17, 169, 0), App.Vector(102, 169, 0)),
    Part.LineSegment(App.Vector(102, 169, 0), App.Vector(102, 20, 0)),
    Part.LineSegment(App.Vector(102, 20, 0), App.Vector(-17, 20, 0)),
], False)
sketch14.addConstraint([
    Sketcher.Constraint("Coincident", 0, 2, 1, 1),
    Sketcher.Constraint("Coincident", 1, 2, 2, 1),
    Sketcher.Constraint("Coincident", 2, 2, 3, 1),
    Sketcher.Constraint("Coincident", 3, 2, 0, 1),
    Sketcher.Constraint("Vertical", 0),
    Sketcher.Constraint("Horizontal", 1),
    Sketcher.Constraint("Vertical", 2),
    Sketcher.Constraint("Horizontal", 3),
    Sketcher.Constraint("DistanceX", 1, 1, 1, 2, Q("119.455465 mm")),
    Sketcher.Constraint("DistanceY", 0, 1, 0, 2, Q("149.467416 mm")),
    Sketcher.Constraint("DistanceY", -1, 1, 0, 2, Q("169.340659 mm")),
    Sketcher.Constraint("DistanceX", -1, 1, 1, 2, Q("102.17315 mm")),
])
pocket4 = body.newObject("PartDesign::Pocket", "Pocket003")
pocket4.Profile = sketch14
pocket4.Length = 4.87
pocket4.Reversed = True

doc.recompute()
